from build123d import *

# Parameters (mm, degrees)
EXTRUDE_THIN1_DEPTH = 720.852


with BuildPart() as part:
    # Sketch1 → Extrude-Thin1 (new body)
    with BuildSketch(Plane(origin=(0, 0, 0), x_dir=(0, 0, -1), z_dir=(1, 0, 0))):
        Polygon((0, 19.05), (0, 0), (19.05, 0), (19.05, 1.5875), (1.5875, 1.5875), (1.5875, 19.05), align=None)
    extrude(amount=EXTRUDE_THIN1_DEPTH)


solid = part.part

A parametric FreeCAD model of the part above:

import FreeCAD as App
import Part
import Sketcher
Q = App.Units.Quantity


def add_polygon(sketch, points):
    """Adds a closed chain of lines whose ends are joined by coincident constraints."""
    first, n = sketch.GeometryCount, len(points)
    for a, b in zip(points, points[1:] + points[:1]):
        sketch.addGeometry(Part.LineSegment(App.Vector(*a, 0), App.Vector(*b, 0)), False)
    for i in range(n):
        sketch.addConstraint(Sketcher.Constraint("Coincident", first + i, 2, first + (i + 1) % n, 1))

doc = App.newDocument("Part")
body = doc.addObject("PartDesign::Body", "Body")

# Sketch on YZ plane
sketch1 = body.newObject("Sketcher::SketchObject", "Sketch")
sketch1.AttachmentSupport = (doc.getObject("YZ_Plane"), [""])
sketch1.MapMode = "FlatFace"
add_polygon(sketch1, [(19.1, 0), (0, 0), (0, -19.1), (1.6, -19.1), (1.6, -1.6), (19.1, -1.6)])  # lines 0-5
sketch1.addConstraint(Sketcher.Constraint("Horizontal", 0))
sketch1.addConstraint(Sketcher.Constraint("Vertical", 1))
sketch1.addConstraint(Sketcher.Constraint("Horizontal", 2))
sketch1.addConstraint(Sketcher.Constraint("Vertical", 3))
sketch1.addConstraint(Sketcher.Constraint("Horizontal", 4))
sketch1.addConstraint(Sketcher.Constraint("Vertical", 5))
sketch1.addConstraint(Sketcher.Constraint("Coincident", 0, 2, -1, 1))
sketch1.addConstraint(Sketcher.Constraint("Equal", 0, 1))
sketch1.addConstraint(Sketcher.Constraint("Equal", 4, 3))
sketch1.addConstraint(Sketcher.Constraint("DistanceX", 0, 2, 0, 1, Q("0.75 in")))
sketch1.addConstraint(Sketcher.Constraint("DistanceX", 2, 1, 2, 2, Q("0.0625 in")))
pad1 = body.newObject("PartDesign::Pad", "Pad")
pad1.Profile = sketch1
pad1.Length = Q("28.38 in")

doc.recompute()
